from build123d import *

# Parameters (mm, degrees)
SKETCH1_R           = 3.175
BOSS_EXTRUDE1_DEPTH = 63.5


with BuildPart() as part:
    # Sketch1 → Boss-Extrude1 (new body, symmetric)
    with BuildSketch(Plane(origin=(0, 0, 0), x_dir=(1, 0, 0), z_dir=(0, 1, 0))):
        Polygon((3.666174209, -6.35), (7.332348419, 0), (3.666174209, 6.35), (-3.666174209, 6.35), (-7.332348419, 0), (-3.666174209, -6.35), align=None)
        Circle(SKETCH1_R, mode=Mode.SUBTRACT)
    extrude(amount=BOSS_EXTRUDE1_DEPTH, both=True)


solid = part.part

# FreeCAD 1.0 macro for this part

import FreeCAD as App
import Part
import Sketcher
from FreeCAD import Vector
Q = App.Units.Quantity


def add_polygon(sketch, points):
    """Adds a closed chain of lines whose ends are joined by coincident constraints."""
    first, n = sketch.GeometryCount, len(points)
    for a, b in zip(points, points[1:] + points[:1]):
        sketch.addGeometry(Part.LineSegment(App.Vector(*a, 0), App.Vector(*b, 0)), False)
    for i in range(n):
        sketch.addConstraint(Sketcher.Constraint("Coincident", first + i, 2, first + (i + 1) % n, 1))

doc = App.newDocument("Part")
body = doc.addObject("PartDesign::Body", "Body")

sketch1 = body.newObject("Sketcher::SketchObject", "Sketch")
sketch1.AttachmentSupport = (doc.getObject("XZ_Plane"), [""])
sketch1.MapMode = "FlatFace"
add_polygon(sketch1, [(3.7, 6.3), (7.3, 0), (3.7, -6.3), (-3.7, -6.3), (-7.3, 0), (-3.7, 6.3)])
sketch1.addGeometry(Part.Circle(Vector(0, 0, 0), Vector(0, 0, 1), 3.2), False)
sketch1.addConstraint(Sketcher.Constraint("Horizontal", 2))
sketch1.addConstraint(Sketcher.Constraint("Horizontal", 5))
sketch1.addConstraint(Sketcher.Constraint("Coincident", 6, 3, -1, 1))
sketch1.addConstraint(Sketcher.Constraint("Symmetric", 0, 2, 3, 2, -1, 1))
sketch1.addConstraint(Sketcher.Constraint("Symmetric", 1, 2, 4, 2, -1, 1))
sketch1.addConstraint(Sketcher.Constraint("PointOnObject", 0, 2, -1))
sketch1.addConstraint(Sketcher.Constraint("Parallel", 0, 3))
sketch1.addConstraint(Sketcher.Constraint("Vertical", 2, 2, 4, 2))
sketch1.addConstraint(Sketcher.Constraint("Diameter", 6, Q("0.25 in")))
sketch1.addConstraint(Sketcher.Constraint("Angle", 0, Q("-60 deg")))
sketch1.addConstraint(Sketcher.Constraint("DistanceY", 2, 2, 4, 2, Q("0.5 in")))
sketch1.addConstraint(Sketcher.Constraint("DistanceX", 2, 2, 2, 1, Q("7.332348 mm")))
pad1 = body.newObject("PartDesign::Pad", "Pad")
pad1.Profile = sketch1
pad1.Length = Q("5 in")
pad1.Midplane = True

doc.recompute()
